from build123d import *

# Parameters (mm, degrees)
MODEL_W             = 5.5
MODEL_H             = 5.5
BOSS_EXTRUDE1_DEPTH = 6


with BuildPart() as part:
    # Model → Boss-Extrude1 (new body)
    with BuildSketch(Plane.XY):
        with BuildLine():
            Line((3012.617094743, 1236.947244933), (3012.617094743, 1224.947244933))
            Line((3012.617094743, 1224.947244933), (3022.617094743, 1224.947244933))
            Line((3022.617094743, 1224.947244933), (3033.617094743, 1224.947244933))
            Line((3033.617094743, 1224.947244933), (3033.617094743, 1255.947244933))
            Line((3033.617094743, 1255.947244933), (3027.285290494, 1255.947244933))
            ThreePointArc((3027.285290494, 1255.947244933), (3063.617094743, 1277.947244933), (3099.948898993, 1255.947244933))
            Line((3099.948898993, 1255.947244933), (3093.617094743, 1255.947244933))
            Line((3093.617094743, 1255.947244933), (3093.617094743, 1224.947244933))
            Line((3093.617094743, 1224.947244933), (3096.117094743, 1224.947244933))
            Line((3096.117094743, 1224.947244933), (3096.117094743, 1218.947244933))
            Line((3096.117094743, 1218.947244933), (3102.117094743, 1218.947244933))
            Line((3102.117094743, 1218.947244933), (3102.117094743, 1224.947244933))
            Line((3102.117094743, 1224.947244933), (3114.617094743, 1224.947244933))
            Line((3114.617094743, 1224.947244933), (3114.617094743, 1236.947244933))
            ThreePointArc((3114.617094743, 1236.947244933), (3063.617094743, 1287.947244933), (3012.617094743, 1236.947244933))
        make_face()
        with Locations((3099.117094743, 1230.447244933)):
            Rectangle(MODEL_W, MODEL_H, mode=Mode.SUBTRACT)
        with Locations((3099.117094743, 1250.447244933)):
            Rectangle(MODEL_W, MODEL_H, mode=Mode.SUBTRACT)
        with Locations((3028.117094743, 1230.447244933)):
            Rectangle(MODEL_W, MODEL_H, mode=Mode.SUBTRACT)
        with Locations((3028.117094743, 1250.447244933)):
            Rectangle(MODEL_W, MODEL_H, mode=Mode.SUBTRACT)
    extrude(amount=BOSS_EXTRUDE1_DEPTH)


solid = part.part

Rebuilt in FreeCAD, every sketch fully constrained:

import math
import FreeCAD as App
import Part
import Sketcher

V = App.Vector

doc = App.newDocument("Part")
params = doc.addObject("Spreadsheet::Sheet", "Params")
for row, (alias, value) in enumerate([
    ("sketch1_radius", "41 mm"),
    ("sketch1_radius2", "51 mm"),
    ("sketch1_width", "21 mm"),
    ("sketch1_width2", "6 mm"),
    ("sketch1_height", "12 mm"),
    ("pad1_length", "6 mm"),
], start=1):
    params.set(f"A{row}", alias)
    params.set(f"B{row}", "=" + value)
    params.setAlias(f"B{row}", alias)

body = doc.addObject("PartDesign::Body", "Body")

# Sketch on XY plane
sketch1 = doc.addObject("Sketcher::SketchObject", "Sketch")
body.addObject(sketch1)
sketch1.AttachmentSupport = (doc.XY_Plane, [""])
sketch1.MapMode = "FlatFace"
sketch1.addGeometry(Part.LineSegment(V(3012.617095, 1236.947245, 0), V(3012.617095, 1224.947245, 0)), False)
sketch1.addGeometry(Part.LineSegment(V(3012.617095, 1224.947245, 0), V(3033.617095, 1224.947245, 0)), False)
sketch1.addGeometry(Part.LineSegment(V(3033.617095, 1224.947245, 0), V(3033.617095, 1255.947245, 0)), False)
sketch1.addGeometry(Part.LineSegment(V(3033.617095, 1255.947245, 0), V(3027.28529, 1255.947245, 0)), False)
sketch1.addGeometry(Part.ArcOfCircle(Part.Circle(V(3063.617095, 1236.947245, 0), V(0, 0, 1), 41), math.radians(27.607668), math.radians(152.392332)), False)
sketch1.addGeometry(Part.LineSegment(V(3099.948899, 1255.947245, 0), V(3093.617095, 1255.947245, 0)), False)
sketch1.addGeometry(Part.LineSegment(V(3093.617095, 1255.947245, 0), V(3093.617095, 1224.947245, 0)), False)
sketch1.addGeometry(Part.LineSegment(V(3093.617095, 1224.947245, 0), V(3096.117095, 1224.947245, 0)), False)
sketch1.addGeometry(Part.LineSegment(V(3096.117095, 1224.947245, 0), V(3096.117095, 1218.947245, 0)), False)
sketch1.addGeometry(Part.LineSegment(V(3096.117095, 1218.947245, 0), V(3102.117095, 1218.947245, 0)), False)
sketch1.addGeometry(Part.LineSegment(V(3102.117095, 1218.947245, 0), V(3102.117095, 1224.947245, 0)), False)
sketch1.addGeometry(Part.LineSegment(V(3102.117095, 1224.947245, 0), V(3114.617095, 1224.947245, 0)), False)
sketch1.addGeometry(Part.LineSegment(V(3114.617095, 1224.947245, 0), V(3114.617095, 1236.947245, 0)), False)
sketch1.addGeometry(Part.ArcOfCircle(Part.Circle(V(3063.617095, 1236.947245, 0), V(0, 0, 1), 51), math.radians(0), math.radians(180)), False)
sketch1.addGeometry(Part.LineSegment(V(3030.867095, 1227.697245, 0), V(3025.367095, 1227.697245, 0)), False)
sketch1.addGeometry(Part.LineSegment(V(3025.367095, 1227.697245, 0), V(3025.367095, 1233.197245, 0)), False)
sketch1.addGeometry(Part.LineSegment(V(3025.367095, 1233.197245, 0), V(3030.867095, 1233.197245, 0)), False)
sketch1.addGeometry(Part.LineSegment(V(3030.867095, 1233.197245, 0), V(3030.867095, 1227.697245, 0)), False)
sketch1.addGeometry(Part.LineSegment(V(3101.867095, 1227.697245, 0), V(3096.367095, 1227.697245, 0)), False)
sketch1.addGeometry(Part.LineSegment(V(3096.367095, 1227.697245, 0), V(3096.367095, 1233.197245, 0)), False)
sketch1.addGeometry(Part.LineSegment(V(3096.367095, 1233.197245, 0), V(3101.867095, 1233.197245, 0)), False)
sketch1.addGeometry(Part.LineSegment(V(3101.867095, 1233.197245, 0), V(3101.867095, 1227.697245, 0)), False)
sketch1.addGeometry(Part.LineSegment(V(3030.867095, 1247.697245, 0), V(3025.367095, 1247.697245, 0)), False)
sketch1.addGeometry(Part.LineSegment(V(3025.367095, 1247.697245, 0), V(3025.367095, 1253.197245, 0)), False)
sketch1.addGeometry(Part.LineSegment(V(3025.367095, 1253.197245, 0), V(3030.867095, 1253.197245, 0)), False)
sketch1.addGeometry(Part.LineSegment(V(3030.867095, 1253.197245, 0), V(3030.867095, 1247.697245, 0)), False)
sketch1.addGeometry(Part.LineSegment(V(3101.867095, 1247.697245, 0), V(3096.367095, 1247.697245, 0)), False)
sketch1.addGeometry(Part.LineSegment(V(3096.367095, 1247.697245, 0), V(3096.367095, 1253.197245, 0)), False)
sketch1.addGeometry(Part.LineSegment(V(3096.367095, 1253.197245, 0), V(3101.867095, 1253.197245, 0)), False)
sketch1.addGeometry(Part.LineSegment(V(3101.867095, 1253.197245, 0), V(3101.867095, 1247.697245, 0)), False)
sketch1.addConstraint(Sketcher.Constraint("Coincident", 0, 2, 1, 1))
sketch1.addConstraint(Sketcher.Constraint("Coincident", 1, 2, 2, 1))
sketch1.addConstraint(Sketcher.Constraint("Coincident", 2, 2, 3, 1))
sketch1.addConstraint(Sketcher.Constraint("Coincident", 3, 2, 4, 2))
sketch1.addConstraint(Sketcher.Constraint("Coincident", 4, 1, 5, 1))
sketch1.addConstraint(Sketcher.Constraint("Coincident", 5, 2, 6, 1))
sketch1.addConstraint(Sketcher.Constraint("Coincident", 6, 2, 7, 1))
sketch1.addConstraint(Sketcher.Constraint("Coincident", 7, 2, 8, 1))
sketch1.addConstraint(Sketcher.Constraint("Coincident", 8, 2, 9, 1))
sketch1.addConstraint(Sketcher.Constraint("Coincident", 9, 2, 10, 1))
sketch1.addConstraint(Sketcher.Constraint("Coincident", 10, 2, 11, 1))
sketch1.addConstraint(Sketcher.Constraint("Coincident", 11, 2, 12, 1))
sketch1.addConstraint(Sketcher.Constraint("Tangent", 12, 2, 13, 1))
sketch1.addConstraint(Sketcher.Constraint("Tangent", 13, 2, 0, 1))
sketch1.addConstraint(Sketcher.Constraint("Coincident", 14, 2, 15, 1))
sketch1.addConstraint(Sketcher.Constraint("Coincident", 15, 2, 16, 1))
sketch1.addConstraint(Sketcher.Constraint("Coincident", 16, 2, 17, 1))
sketch1.addConstraint(Sketcher.Constraint("Coincident", 17, 2, 14, 1))
sketch1.addConstraint(Sketcher.Constraint("Coincident", 18, 2, 19, 1))
sketch1.addConstraint(Sketcher.Constraint("Coincident", 19, 2, 20, 1))
sketch1.addConstraint(Sketcher.Constraint("Coincident", 20, 2, 21, 1))
sketch1.addConstraint(Sketcher.Constraint("Coincident", 21, 2, 18, 1))
sketch1.addConstraint(Sketcher.Constraint("Coincident", 22, 2, 23, 1))
sketch1.addConstraint(Sketcher.Constraint("Coincident", 23, 2, 24, 1))
sketch1.addConstraint(Sketcher.Constraint("Coincident", 24, 2, 25, 1))
sketch1.addConstraint(Sketcher.Constraint("Coincident", 25, 2, 22, 1))
sketch1.addConstraint(Sketcher.Constraint("Coincident", 26, 2, 27, 1))
sketch1.addConstraint(Sketcher.Constraint("Coincident", 27, 2, 28, 1))
sketch1.addConstraint(Sketcher.Constraint("Coincident", 28, 2, 29, 1))
sketch1.addConstraint(Sketcher.Constraint("Coincident", 29, 2, 26, 1))
sketch1.addConstraint(Sketcher.Constraint("Vertical", 0))
sketch1.addConstraint(Sketcher.Constraint("Horizontal", 1))
sketch1.addConstraint(Sketcher.Constraint("Vertical", 2))
sketch1.addConstraint(Sketcher.Constraint("Horizontal", 3))
sketch1.addConstraint(Sketcher.Constraint("Horizontal", 5))
sketch1.addConstraint(Sketcher.Constraint("Vertical", 6))
sketch1.addConstraint(Sketcher.Constraint("Horizontal", 7))
sketch1.addConstraint(Sketcher.Constraint("Vertical", 8))
sketch1.addConstraint(Sketcher.Constraint("Horizontal", 9))
sketch1.addConstraint(Sketcher.Constraint("Vertical", 10))
sketch1.addConstraint(Sketcher.Constraint("Horizontal", 11))
sketch1.addConstraint(Sketcher.Constraint("Vertical", 12))
sketch1.addConstraint(Sketcher.Constraint("Horizontal", 14))
sketch1.addConstraint(Sketcher.Constraint("Vertical", 15))
sketch1.addConstraint(Sketcher.Constraint("Horizontal", 16))
sketch1.addConstraint(Sketcher.Constraint("Vertical", 17))
sketch1.addConstraint(Sketcher.Constraint("Horizontal", 18))
sketch1.addConstraint(Sketcher.Constraint("Vertical", 19))
sketch1.addConstraint(Sketcher.Constraint("Horizontal", 20))
sketch1.addConstraint(Sketcher.Constraint("Vertical", 21))
sketch1.addConstraint(Sketcher.Constraint("Horizontal", 22))
sketch1.addConstraint(Sketcher.Constraint("Vertical", 23))
sketch1.addConstraint(Sketcher.Constraint("Horizontal", 24))
sketch1.addConstraint(Sketcher.Constraint("Vertical", 25))
sketch1.addConstraint(Sketcher.Constraint("Horizontal", 26))
sketch1.addConstraint(Sketcher.Constraint("Vertical", 27))
sketch1.addConstraint(Sketcher.Constraint("Horizontal", 28))
sketch1.addConstraint(Sketcher.Constraint("Vertical", 29))
sketch1.addConstraint(Sketcher.Constraint("Coincident", 13, 3, 4, 3))
sketch1.addConstraint(Sketcher.Constraint("Horizontal", 3, 2, 4, 1))
sketch1.addConstraint(Sketcher.Constraint("Horizontal", 1, 2, 6, 2))
sketch1.addConstraint(Sketcher.Constraint("Horizontal", 7, 2, 10, 2))
sketch1.addConstraint(Sketcher.Constraint("Horizontal", 17, 2, 18, 2))
sketch1.addConstraint(Sketcher.Constraint("Horizontal", 16, 2, 19, 2))
sketch1.addConstraint(Sketcher.Constraint("Horizontal", 25, 2, 26, 2))
sketch1.addConstraint(Sketcher.Constraint("Horizontal", 24, 2, 27, 2))
sketch1.addConstraint(Sketcher.Constraint("Vertical", 15, 2, 22, 2))
sketch1.addConstraint(Sketcher.Constraint("Vertical", 17, 2, 24, 2))
sketch1.addConstraint(Sketcher.Constraint("Vertical", 19, 2, 26, 2))
sketch1.addConstraint(Sketcher.Constraint("Vertical", 21, 2, 28, 2))
sketch1.addConstraint(Sketcher.Constraint("Equal", 3, 5))
sketch1.addConstraint(Sketcher.Constraint("Equal", 16, 18))
sketch1.addConstraint(Sketcher.Constraint("Equal", 9, 8))
sketch1.addConstraint(Sketcher.Constraint("Equal", 28, 15))
sketch1.addConstraint(Sketcher.Constraint("Equal", 21, 23))
sketch1.addConstraint(Sketcher.Constraint("Radius", 4, 41.0))
sketch1.addConstraint(Sketcher.Constraint("Radius", 13, 51.0))
sketch1.addConstraint(Sketcher.Constraint("DistanceX", 1, 1, 1, 2, 21.0))
sketch1.addConstraint(Sketcher.Constraint("DistanceX", 9, 1, 9, 2, 6.0))
sketch1.addConstraint(Sketcher.Constraint("DistanceY", 0, 2, 0, 1, 12.0))
sketch1.addConstraint(Sketcher.Constraint("DistanceY", 2, 1, 2, 2, 31.0))
sketch1.addConstraint(Sketcher.Constraint("DistanceX", 7, 1, 7, 2, 2.5))
sketch1.addConstraint(Sketcher.Constraint("DistanceX", 14, 2, 14, 1, 5.5))
sketch1.addConstraint(Sketcher.Constraint("DistanceY", 15, 2, 23, 2, 20.0))
sketch1.addConstraint(Sketcher.Constraint("DistanceX", 14, 2, 1, 2, 8.25))
sketch1.addConstraint(Sketcher.Constraint("DistanceY", 1, 2, 14, 2, 2.75))
sketch1.addConstraint(Sketcher.Constraint("DistanceX", 7, 2, 18, 2, 0.25))
sketch1.addConstraint(Sketcher.Constraint("DistanceX", -1, 1, 4, 1, 3099.948899))
sketch1.addConstraint(Sketcher.Constraint("DistanceY", -1, 1, 4, 3, 1236.947245))
sketch1.setExpression("Constraints[75]", "Params.sketch1_radius")
sketch1.setExpression("Constraints[76]", "Params.sketch1_radius2")
sketch1.setExpression("Constraints[77]", "Params.sketch1_width")
sketch1.setExpression("Constraints[78]", "Params.sketch1_width2")
sketch1.setExpression("Constraints[79]", "Params.sketch1_height")
pad1 = doc.addObject("PartDesign::Pad", "Pad")
body.addObject(pad1)
pad1.Profile = sketch1
pad1.setExpression("Length", "Params.pad1_length")

doc.recompute()
